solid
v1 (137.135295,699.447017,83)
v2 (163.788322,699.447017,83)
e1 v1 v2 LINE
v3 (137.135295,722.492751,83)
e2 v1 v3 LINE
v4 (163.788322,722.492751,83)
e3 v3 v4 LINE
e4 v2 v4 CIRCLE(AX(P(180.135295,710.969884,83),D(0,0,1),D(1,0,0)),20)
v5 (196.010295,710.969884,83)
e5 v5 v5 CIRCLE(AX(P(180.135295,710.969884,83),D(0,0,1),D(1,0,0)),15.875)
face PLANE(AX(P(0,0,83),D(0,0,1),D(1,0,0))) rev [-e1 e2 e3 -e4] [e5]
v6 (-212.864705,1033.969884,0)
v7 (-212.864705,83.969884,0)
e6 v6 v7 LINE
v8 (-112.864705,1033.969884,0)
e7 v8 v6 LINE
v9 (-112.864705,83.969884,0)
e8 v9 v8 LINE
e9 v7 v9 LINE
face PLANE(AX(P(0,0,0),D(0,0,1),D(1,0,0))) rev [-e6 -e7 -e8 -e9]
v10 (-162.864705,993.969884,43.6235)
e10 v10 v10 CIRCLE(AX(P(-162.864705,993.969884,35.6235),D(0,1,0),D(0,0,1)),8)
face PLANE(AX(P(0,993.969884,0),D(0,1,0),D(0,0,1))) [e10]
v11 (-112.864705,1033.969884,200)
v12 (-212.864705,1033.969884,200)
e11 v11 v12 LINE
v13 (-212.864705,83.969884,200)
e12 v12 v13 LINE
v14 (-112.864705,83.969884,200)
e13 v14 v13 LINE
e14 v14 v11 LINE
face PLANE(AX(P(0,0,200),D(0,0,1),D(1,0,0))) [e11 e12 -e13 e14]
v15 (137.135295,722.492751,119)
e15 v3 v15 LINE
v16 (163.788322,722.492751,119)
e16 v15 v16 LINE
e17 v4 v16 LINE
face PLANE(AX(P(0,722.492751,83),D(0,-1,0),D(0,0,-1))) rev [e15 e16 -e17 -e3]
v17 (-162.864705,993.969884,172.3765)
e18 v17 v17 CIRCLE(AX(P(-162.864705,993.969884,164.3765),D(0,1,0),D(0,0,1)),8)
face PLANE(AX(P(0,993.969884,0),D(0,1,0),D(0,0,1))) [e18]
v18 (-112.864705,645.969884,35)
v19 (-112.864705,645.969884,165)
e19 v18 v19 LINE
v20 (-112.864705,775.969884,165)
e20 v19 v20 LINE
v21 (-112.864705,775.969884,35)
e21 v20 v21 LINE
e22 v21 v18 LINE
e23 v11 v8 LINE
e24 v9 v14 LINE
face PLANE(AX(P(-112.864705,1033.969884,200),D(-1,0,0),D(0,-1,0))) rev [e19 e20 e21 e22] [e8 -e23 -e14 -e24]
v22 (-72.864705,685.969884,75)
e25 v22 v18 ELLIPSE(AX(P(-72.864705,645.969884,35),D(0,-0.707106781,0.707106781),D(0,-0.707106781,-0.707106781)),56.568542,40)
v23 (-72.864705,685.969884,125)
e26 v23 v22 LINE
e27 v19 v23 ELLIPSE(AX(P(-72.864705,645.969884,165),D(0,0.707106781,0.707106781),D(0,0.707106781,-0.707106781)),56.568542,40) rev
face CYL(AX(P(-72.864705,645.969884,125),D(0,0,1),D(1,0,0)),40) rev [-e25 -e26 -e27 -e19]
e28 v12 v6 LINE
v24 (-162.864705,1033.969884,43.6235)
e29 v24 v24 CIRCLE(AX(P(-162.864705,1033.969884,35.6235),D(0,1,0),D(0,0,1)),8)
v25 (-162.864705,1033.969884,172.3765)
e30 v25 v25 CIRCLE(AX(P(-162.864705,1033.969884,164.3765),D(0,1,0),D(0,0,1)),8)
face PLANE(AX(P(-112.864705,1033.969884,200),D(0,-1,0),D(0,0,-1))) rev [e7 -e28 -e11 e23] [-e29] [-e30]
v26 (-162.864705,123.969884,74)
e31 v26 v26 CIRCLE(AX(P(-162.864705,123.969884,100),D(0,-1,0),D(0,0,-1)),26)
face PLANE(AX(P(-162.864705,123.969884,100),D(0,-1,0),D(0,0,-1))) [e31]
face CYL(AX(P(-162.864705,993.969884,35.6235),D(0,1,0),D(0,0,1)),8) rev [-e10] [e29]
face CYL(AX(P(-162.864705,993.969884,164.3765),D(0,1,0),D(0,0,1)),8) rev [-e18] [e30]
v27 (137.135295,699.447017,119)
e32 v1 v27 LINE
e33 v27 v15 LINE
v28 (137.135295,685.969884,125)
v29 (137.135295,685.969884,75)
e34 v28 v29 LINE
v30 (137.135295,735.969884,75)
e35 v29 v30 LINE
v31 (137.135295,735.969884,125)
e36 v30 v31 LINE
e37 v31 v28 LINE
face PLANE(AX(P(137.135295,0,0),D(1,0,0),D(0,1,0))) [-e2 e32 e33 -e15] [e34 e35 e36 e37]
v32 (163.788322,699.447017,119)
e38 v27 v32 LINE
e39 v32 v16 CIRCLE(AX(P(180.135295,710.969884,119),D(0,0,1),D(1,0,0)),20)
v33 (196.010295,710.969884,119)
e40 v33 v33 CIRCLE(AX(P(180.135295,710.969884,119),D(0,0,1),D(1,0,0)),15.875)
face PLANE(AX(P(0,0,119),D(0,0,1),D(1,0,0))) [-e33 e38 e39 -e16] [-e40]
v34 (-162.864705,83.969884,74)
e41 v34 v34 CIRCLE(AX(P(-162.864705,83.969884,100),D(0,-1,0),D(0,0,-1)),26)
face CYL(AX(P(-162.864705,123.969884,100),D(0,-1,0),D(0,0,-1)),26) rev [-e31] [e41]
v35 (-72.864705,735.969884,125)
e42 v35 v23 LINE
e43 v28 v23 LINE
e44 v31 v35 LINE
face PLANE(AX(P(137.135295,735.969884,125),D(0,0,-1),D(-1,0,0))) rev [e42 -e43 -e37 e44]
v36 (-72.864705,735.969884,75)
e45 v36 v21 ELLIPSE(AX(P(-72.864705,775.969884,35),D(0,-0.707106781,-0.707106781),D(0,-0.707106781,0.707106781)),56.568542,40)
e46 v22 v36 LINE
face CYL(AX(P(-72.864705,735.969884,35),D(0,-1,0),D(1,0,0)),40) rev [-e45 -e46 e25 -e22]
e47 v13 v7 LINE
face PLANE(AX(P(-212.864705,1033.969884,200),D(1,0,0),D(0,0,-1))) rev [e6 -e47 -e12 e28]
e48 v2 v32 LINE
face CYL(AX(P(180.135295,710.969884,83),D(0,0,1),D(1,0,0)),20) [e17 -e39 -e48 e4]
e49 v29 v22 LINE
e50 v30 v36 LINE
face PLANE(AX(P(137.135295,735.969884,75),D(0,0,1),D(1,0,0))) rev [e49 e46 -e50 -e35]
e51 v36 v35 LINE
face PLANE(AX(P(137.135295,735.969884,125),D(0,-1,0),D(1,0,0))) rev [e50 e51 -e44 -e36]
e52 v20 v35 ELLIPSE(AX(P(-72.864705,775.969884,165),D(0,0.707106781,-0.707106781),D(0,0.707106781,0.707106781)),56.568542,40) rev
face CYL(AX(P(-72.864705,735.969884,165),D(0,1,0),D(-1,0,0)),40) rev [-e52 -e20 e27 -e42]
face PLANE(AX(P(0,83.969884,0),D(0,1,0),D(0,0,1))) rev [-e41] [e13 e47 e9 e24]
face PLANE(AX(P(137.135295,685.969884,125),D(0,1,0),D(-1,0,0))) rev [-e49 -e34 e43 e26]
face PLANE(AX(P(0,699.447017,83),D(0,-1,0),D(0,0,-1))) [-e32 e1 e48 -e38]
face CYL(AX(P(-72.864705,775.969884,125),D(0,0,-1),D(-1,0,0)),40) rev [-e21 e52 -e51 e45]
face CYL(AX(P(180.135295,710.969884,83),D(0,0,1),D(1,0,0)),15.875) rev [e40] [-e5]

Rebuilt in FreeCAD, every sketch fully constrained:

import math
import FreeCAD as App
import Part
import Sketcher
Q = App.Units.Quantity


def edges_at(feature, points):
    """Names of the edges that pass closest to the given points."""
    edges = feature.Shape.Edges
    near = lambda p: min(range(len(edges)), key=lambda i: edges[i].distToShape(Part.Vertex(*p))[0])
    return sorted({f"Edge{near(p) + 1}" for p in points})


def add_polygon(sketch, points):
    """Adds a closed chain of lines whose ends are joined by coincident constraints."""
    first, n = sketch.GeometryCount, len(points)
    for a, b in zip(points, points[1:] + points[:1]):
        sketch.addGeometry(Part.LineSegment(App.Vector(*a, 0), App.Vector(*b, 0)), False)
    for i in range(n):
        sketch.addConstraint(Sketcher.Constraint("Coincident", first + i, 2, first + (i + 1) % n, 1))

doc = App.newDocument("Part")
body = doc.addObject("PartDesign::Body", "Body")

sketch1 = body.newObject("Sketcher::SketchObject", "Sketch")
sketch1.AttachmentSupport = (doc.getObject("XY_Plane"), [""])
sketch1.MapMode = "FlatFace"
add_polygon(sketch1, [(-212.864705, 1033.969884), (-212.864705, -66.030116), (-112.864705, -66.030116), (-112.864705, 1033.969884)])
sketch1.addConstraint([
    Sketcher.Constraint("Vertical", 0),
    Sketcher.Constraint("Horizontal", 1),
    Sketcher.Constraint("Vertical", 2),
    Sketcher.Constraint("Horizontal", 3),
    Sketcher.Constraint("DistanceX", 1, 1, 1, 2, Q("100 mm")),
    Sketcher.Constraint("DistanceY", 0, 2, 0, 1, Q("1100 mm")),
    Sketcher.Constraint("DistanceX", 0, 2, -1, 1, Q("212.864705 mm")),
    Sketcher.Constraint("DistanceY", 0, 2, -1, 1, Q("66.030116 mm")),
])
pad1 = body.newObject("PartDesign::Pad", "Pad")
pad1.Profile = sketch1
pad1.Length = 200

sketch2 = body.newObject("Sketcher::SketchObject", "Sketch001")
sketch2.AttachmentSupport = (doc.getObject("YZ_Plane"), [""])
sketch2.MapMode = "FlatFace"
sketch2.AttachmentOffset = App.Placement(App.Vector(0, 0, -112.864705), App.Rotation())
add_polygon(sketch2, [(735.969884, 125), (685.969884, 125), (685.969884, 75), (735.969884, 75)])
sketch2.addConstraint([
    Sketcher.Constraint("Horizontal", 0),
    Sketcher.Constraint("Vertical", 1),
    Sketcher.Constraint("Horizontal", 2),
    Sketcher.Constraint("Vertical", 3),
    Sketcher.Constraint("Equal", 2, 1),
    Sketcher.Constraint("DistanceX", 0, 2, 0, 1, Q("50 mm")),
    Sketcher.Constraint("DistanceY", -1, 1, 0, 2, Q("125 mm")),
    Sketcher.Constraint("DistanceX", -1, 1, 0, 2, Q("685.969884 mm")),
])
pad2 = body.newObject("PartDesign::Pad", "Pad001")
pad2.Profile = sketch2
pad2.Length = 250
doc.recompute()

fillet = body.newObject("PartDesign::Fillet", "Fillet")
fillet.Base = (pad2, edges_at(pad2, [
    (-112.865, 710.97, 75),
    (-112.865, 735.97, 100),
    (-112.865, 710.97, 125),
    (-112.865, 685.97, 100),
]))
fillet.Radius = 40

sketch3 = body.newObject("Sketcher::SketchObject", "Sketch002")
sketch3.AttachmentSupport = (doc.getObject("XY_Plane"), [""])
sketch3.MapMode = "FlatFace"
sketch3.AttachmentOffset = App.Placement(App.Vector(0, 0, 119), App.Rotation())
sketch3.addGeometry([
    Part.LineSegment(App.Vector(137.135295, 722.492751, 0), App.Vector(137.135295, 699.447017, 0)),
    Part.LineSegment(App.Vector(137.135295, 699.447017, 0), App.Vector(163.788322, 699.447017, 0)),
    Part.ArcOfCircle(Part.Circle(App.Vector(180.135295, 710.969884, 0), App.Vector(0, 0, 1), 20), math.radians(-144.820258), math.radians(144.820258)),
    Part.LineSegment(App.Vector(163.788322, 722.492751, 0), App.Vector(137.135295, 722.492751, 0)),
    Part.Circle(App.Vector(180.135295, 710.969884, 0), App.Vector(0, 0, 1), 15.875),
], False)
sketch3.addConstraint([
    Sketcher.Constraint("Coincident", 0, 2, 1, 1),
    Sketcher.Constraint("Coincident", 1, 2, 2, 1),
    Sketcher.Constraint("Coincident", 2, 2, 3, 1),
    Sketcher.Constraint("Coincident", 3, 2, 0, 1),
    Sketcher.Constraint("Vertical", 0),
    Sketcher.Constraint("Horizontal", 1),
    Sketcher.Constraint("Horizontal", 3),
    Sketcher.Constraint("Coincident", 4, 3, 2, 3),
    Sketcher.Constraint("Vertical", 1, 2, 2, 2),
    Sketcher.Constraint("Radius", 2, Q("20 mm")),
    Sketcher.Constraint("Diameter", 4, Q("31.75 mm")),
    Sketcher.Constraint("DistanceX", 0, 2, 2, 3, Q("43 mm")),
    Sketcher.Constraint("DistanceX", 1, 1, 1, 2, Q("26.653027 mm")),
    Sketcher.Constraint("DistanceY", -1, 1, 2, 2, Q("722.492751 mm")),
    Sketcher.Constraint("DistanceX", -1, 1, 2, 3, Q("180.135295 mm")),
])
pad3 = body.newObject("PartDesign::Pad", "Pad002")
pad3.Profile = sketch3
pad3.Length = 36
pad3.Reversed = True

sketch4 = body.newObject("Sketcher::SketchObject", "Sketch003")
sketch4.AttachmentSupport = (doc.getObject("XZ_Plane"), [""])
sketch4.MapMode = "FlatFace"
sketch4.AttachmentOffset = App.Placement(App.Vector(0, 0, 66.030116), App.Rotation())
sketch4.addGeometry([
    Part.ArcOfCircle(Part.Circle(App.Vector(-162.864705, 100, 0), App.Vector(0, 0, 1), 26), math.radians(0), math.radians(90)),
    Part.ArcOfCircle(Part.Circle(App.Vector(-162.864705, 100, 0), App.Vector(0, 0, 1), 26), math.radians(90), math.radians(180)),
    Part.ArcOfCircle(Part.Circle(App.Vector(-162.864705, 100, 0), App.Vector(0, 0, 1), 26), math.radians(-180), math.radians(-90)),
    Part.ArcOfCircle(Part.Circle(App.Vector(-162.864705, 100, 0), App.Vector(0, 0, 1), 26), math.radians(-90), math.radians(0)),
], False)
sketch4.addConstraint([
    Sketcher.Constraint("Tangent", 0, 2, 1, 1),
    Sketcher.Constraint("Tangent", 1, 2, 2, 1),
    Sketcher.Constraint("Tangent", 2, 2, 3, 1),
    Sketcher.Constraint("Tangent", 3, 2, 0, 1),
    Sketcher.Constraint("Equal", 0, 1),
    Sketcher.Constraint("Horizontal", 3, 3, 1, 2),
    Sketcher.Constraint("Horizontal", 1, 2, 3, 2),
    Sketcher.Constraint("Vertical", 3, 3, 0, 2),
    Sketcher.Constraint("Vertical", 0, 2, 2, 2),
    Sketcher.Constraint("Radius", 0, Q("26 mm")),
    Sketcher.Constraint("DistanceY", -1, 1, 0, 3, Q("100 mm")),
    Sketcher.Constraint("DistanceX", 0, 3, -1, 1, Q("162.864705 mm")),
])
pocket1 = body.newObject("PartDesign::Pocket", "Pocket")
pocket1.Profile = sketch4
pocket1.Length = 20

sketch5 = body.newObject("Sketcher::SketchObject", "Sketch004")
sketch5.AttachmentSupport = (doc.getObject("XZ_Plane"), [""])
sketch5.MapMode = "FlatFace"
sketch5.AttachmentOffset = App.Placement(App.Vector(0, 0, 66.030116), App.Rotation())
add_polygon(sketch5, [(-212.864705, 200), (-212.864705, 0), (-112.864705, 0), (-112.864705, 200)])
sketch5.addConstraint([
    Sketcher.Constraint("Vertical", 0),
    Sketcher.Constraint("Horizontal", 1),
    Sketcher.Constraint("Vertical", 2),
    Sketcher.Constraint("Horizontal", 3),
    Sketcher.Constraint("PointOnObject", 0, 2, -1),
    Sketcher.Constraint("DistanceX", 1, 1, 1, 2, Q("100 mm")),
    Sketcher.Constraint("DistanceY", 0, 2, 0, 1, Q("200 mm")),
    Sketcher.Constraint("DistanceX", 0, 2, -1, 1, Q("212.864705 mm")),
])
pocket2 = body.newObject("PartDesign::Pocket", "Pocket001")
pocket2.Profile = sketch5
pocket2.Length = 150

sketch6 = body.newObject("Sketcher::SketchObject", "Sketch005")
sketch6.AttachmentSupport = (doc.getObject("XZ_Plane"), [""])
sketch6.MapMode = "FlatFace"
sketch6.AttachmentOffset = App.Placement(App.Vector(0, 0, -83.969884), App.Rotation())
sketch6.addGeometry(Part.Circle(App.Vector(-162.864705, 100, 0), App.Vector(0, 0, 1), 26), False)
sketch6.addConstraint([
    Sketcher.Constraint("Diameter", 0, Q("52 mm")),
    Sketcher.Constraint("DistanceY", -1, 1, 0, 3, Q("100 mm")),
    Sketcher.Constraint("DistanceX", 0, 3, -1, 1, Q("162.864705 mm")),
])
pocket3 = body.newObject("PartDesign::Pocket", "Pocket002")
pocket3.Profile = sketch6
pocket3.Length = 40

sketch7 = body.newObject("Sketcher::SketchObject", "Sketch006")
sketch7.AttachmentSupport = (doc.getObject("XZ_Plane"), [""])
sketch7.MapMode = "FlatFace"
sketch7.AttachmentOffset = App.Placement(App.Vector(0, 0, -1033.969884), App.Rotation())
sketch7.addGeometry(Part.Circle(App.Vector(-162.864705, 164.3765, 0), App.Vector(0, 0, 1), 8), False)
sketch7.addConstraint([
    Sketcher.Constraint("Diameter", 0, Q("16 mm")),
    Sketcher.Constraint("DistanceY", -1, 1, 0, 3, Q("164.3765 mm")),
    Sketcher.Constraint("DistanceX", 0, 3, -1, 1, Q("162.864705 mm")),
])
pocket4 = body.newObject("PartDesign::Pocket", "Pocket003")
pocket4.Profile = sketch7
pocket4.Length = 40
pocket4.Reversed = True

sketch8 = body.newObject("Sketcher::SketchObject", "Sketch007")
sketch8.AttachmentSupport = (doc.getObject("XZ_Plane"), [""])
sketch8.MapMode = "FlatFace"
sketch8.AttachmentOffset = App.Placement(App.Vector(0, 0, -1033.969884), App.Rotation())
sketch8.addGeometry(Part.Circle(App.Vector(-162.864705, 35.6235, 0), App.Vector(0, 0, 1), 8), False)
sketch8.addConstraint([
    Sketcher.Constraint("Diameter", 0, Q("16 mm")),
    Sketcher.Constraint("DistanceY", -1, 1, 0, 3, Q("35.6235 mm")),
    Sketcher.Constraint("DistanceX", 0, 3, -1, 1, Q("162.864705 mm")),
])
pocket5 = body.newObject("PartDesign::Pocket", "Pocket004")
pocket5.Profile = sketch8
pocket5.Length = 40
pocket5.Reversed = True

doc.recompute()
